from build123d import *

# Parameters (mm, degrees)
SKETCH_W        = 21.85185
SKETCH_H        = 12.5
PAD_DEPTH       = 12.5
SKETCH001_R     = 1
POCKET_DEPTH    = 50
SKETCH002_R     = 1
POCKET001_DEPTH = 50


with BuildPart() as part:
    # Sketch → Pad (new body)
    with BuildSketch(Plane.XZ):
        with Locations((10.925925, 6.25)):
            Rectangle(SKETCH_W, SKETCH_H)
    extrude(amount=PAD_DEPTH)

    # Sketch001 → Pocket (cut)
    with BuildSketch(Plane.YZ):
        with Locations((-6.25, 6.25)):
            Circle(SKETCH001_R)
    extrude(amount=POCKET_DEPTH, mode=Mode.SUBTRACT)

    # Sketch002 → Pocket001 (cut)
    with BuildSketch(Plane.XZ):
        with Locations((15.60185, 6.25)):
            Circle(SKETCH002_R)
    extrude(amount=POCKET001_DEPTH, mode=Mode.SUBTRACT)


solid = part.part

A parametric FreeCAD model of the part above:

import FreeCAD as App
import Part
import Sketcher


def add_polygon(sketch, points):
    """Adds a closed chain of lines whose ends are joined by coincident constraints."""
    first, n = sketch.GeometryCount, len(points)
    for a, b in zip(points, points[1:] + points[:1]):
        sketch.addGeometry(Part.LineSegment(App.Vector(*a, 0), App.Vector(*b, 0)), False)
    for i in range(n):
        sketch.addConstraint(Sketcher.Constraint("Coincident", first + i, 2, first + (i + 1) % n, 1))

doc = App.newDocument("Part")
params = doc.addObject("Spreadsheet::Sheet", "Params")
for row, (alias, value) in enumerate([
    ("sketch1_height", "12.5 mm"),
    ("pad1_length", "12.5 mm"),
    ("sketch2_diameter", "2 mm"),
    ("pocket1_length", "50 mm"),
    ("sketch3_diameter", "2 mm"),
    ("pocket2_length", "50 mm"),
], start=1):
    params.set(f"A{row}", alias)
    params.set(f"B{row}", "=" + value)
    params.setAlias(f"B{row}", alias)

body = doc.addObject("PartDesign::Body", "Body")

# Sketch on XZ plane
sketch1 = doc.addObject("Sketcher::SketchObject", "Sketch")
body.addObject(sketch1)
sketch1.AttachmentSupport = (doc.XZ_Plane, [""])
sketch1.MapMode = "FlatFace"
add_polygon(sketch1, [(0, 12.5), (0, 0), (21.85185, 0), (21.85185, 12.5)])  # lines 0-3
sketch1.addConstraint(Sketcher.Constraint("Vertical", 0))
sketch1.addConstraint(Sketcher.Constraint("Horizontal", 1))
sketch1.addConstraint(Sketcher.Constraint("Vertical", 2))
sketch1.addConstraint(Sketcher.Constraint("Horizontal", 3))
sketch1.addConstraint(Sketcher.Constraint("Coincident", 0, 2, -1, 1))
sketch1.addConstraint(Sketcher.Constraint("DistanceY", 0, 2, 0, 1, 12.5))
sketch1.addConstraint(Sketcher.Constraint("DistanceX", 1, 1, 1, 2, 21.85185))
sketch1.setExpression("Constraints[9]", "Params.sketch1_height")
pad1 = doc.addObject("PartDesign::Pad", "Pad")
body.addObject(pad1)
pad1.Profile = sketch1
pad1.setExpression("Length", "Params.pad1_length")

# Sketch on YZ plane
sketch2 = doc.addObject("Sketcher::SketchObject", "Sketch001")
body.addObject(sketch2)
sketch2.AttachmentSupport = (doc.YZ_Plane, [""])
sketch2.MapMode = "FlatFace"
sketch2.addGeometry(Part.Circle(App.Vector(-6.25, 6.25, 0), App.Vector(0, 0, 1), 1), False)
sketch2.addConstraint(Sketcher.Constraint("Diameter", 0, 2.0))
sketch2.addConstraint(Sketcher.Constraint("DistanceX", 0, 3, -1, 1, 6.25))
sketch2.addConstraint(Sketcher.Constraint("DistanceY", -1, 1, 0, 3, 6.25))
sketch2.setExpression("Constraints[0]", "Params.sketch2_diameter")
pocket1 = doc.addObject("PartDesign::Pocket", "Pocket")
body.addObject(pocket1)
pocket1.Profile = sketch2
pocket1.setExpression("Length", "Params.pocket1_length")
pocket1.Reversed = True

# Sketch on XZ plane
sketch3 = doc.addObject("Sketcher::SketchObject", "Sketch002")
body.addObject(sketch3)
sketch3.AttachmentSupport = (doc.XZ_Plane, [""])
sketch3.MapMode = "FlatFace"
sketch3.addGeometry(Part.Circle(App.Vector(15.60185, 6.25, 0), App.Vector(0, 0, 1), 1), False)
sketch3.addConstraint(Sketcher.Constraint("Diameter", 0, 2.0))
sketch3.addConstraint(Sketcher.Constraint("DistanceY", -1, 1, 0, 3, 6.25))
sketch3.addConstraint(Sketcher.Constraint("DistanceX", -1, 1, 0, 3, 15.60185))
sketch3.setExpression("Constraints[0]", "Params.sketch3_diameter")
pocket2 = doc.addObject("PartDesign::Pocket", "Pocket001")
body.addObject(pocket2)
pocket2.Profile = sketch3
pocket2.setExpression("Length", "Params.pocket2_length")
pocket2.Reversed = True

doc.recompute()
